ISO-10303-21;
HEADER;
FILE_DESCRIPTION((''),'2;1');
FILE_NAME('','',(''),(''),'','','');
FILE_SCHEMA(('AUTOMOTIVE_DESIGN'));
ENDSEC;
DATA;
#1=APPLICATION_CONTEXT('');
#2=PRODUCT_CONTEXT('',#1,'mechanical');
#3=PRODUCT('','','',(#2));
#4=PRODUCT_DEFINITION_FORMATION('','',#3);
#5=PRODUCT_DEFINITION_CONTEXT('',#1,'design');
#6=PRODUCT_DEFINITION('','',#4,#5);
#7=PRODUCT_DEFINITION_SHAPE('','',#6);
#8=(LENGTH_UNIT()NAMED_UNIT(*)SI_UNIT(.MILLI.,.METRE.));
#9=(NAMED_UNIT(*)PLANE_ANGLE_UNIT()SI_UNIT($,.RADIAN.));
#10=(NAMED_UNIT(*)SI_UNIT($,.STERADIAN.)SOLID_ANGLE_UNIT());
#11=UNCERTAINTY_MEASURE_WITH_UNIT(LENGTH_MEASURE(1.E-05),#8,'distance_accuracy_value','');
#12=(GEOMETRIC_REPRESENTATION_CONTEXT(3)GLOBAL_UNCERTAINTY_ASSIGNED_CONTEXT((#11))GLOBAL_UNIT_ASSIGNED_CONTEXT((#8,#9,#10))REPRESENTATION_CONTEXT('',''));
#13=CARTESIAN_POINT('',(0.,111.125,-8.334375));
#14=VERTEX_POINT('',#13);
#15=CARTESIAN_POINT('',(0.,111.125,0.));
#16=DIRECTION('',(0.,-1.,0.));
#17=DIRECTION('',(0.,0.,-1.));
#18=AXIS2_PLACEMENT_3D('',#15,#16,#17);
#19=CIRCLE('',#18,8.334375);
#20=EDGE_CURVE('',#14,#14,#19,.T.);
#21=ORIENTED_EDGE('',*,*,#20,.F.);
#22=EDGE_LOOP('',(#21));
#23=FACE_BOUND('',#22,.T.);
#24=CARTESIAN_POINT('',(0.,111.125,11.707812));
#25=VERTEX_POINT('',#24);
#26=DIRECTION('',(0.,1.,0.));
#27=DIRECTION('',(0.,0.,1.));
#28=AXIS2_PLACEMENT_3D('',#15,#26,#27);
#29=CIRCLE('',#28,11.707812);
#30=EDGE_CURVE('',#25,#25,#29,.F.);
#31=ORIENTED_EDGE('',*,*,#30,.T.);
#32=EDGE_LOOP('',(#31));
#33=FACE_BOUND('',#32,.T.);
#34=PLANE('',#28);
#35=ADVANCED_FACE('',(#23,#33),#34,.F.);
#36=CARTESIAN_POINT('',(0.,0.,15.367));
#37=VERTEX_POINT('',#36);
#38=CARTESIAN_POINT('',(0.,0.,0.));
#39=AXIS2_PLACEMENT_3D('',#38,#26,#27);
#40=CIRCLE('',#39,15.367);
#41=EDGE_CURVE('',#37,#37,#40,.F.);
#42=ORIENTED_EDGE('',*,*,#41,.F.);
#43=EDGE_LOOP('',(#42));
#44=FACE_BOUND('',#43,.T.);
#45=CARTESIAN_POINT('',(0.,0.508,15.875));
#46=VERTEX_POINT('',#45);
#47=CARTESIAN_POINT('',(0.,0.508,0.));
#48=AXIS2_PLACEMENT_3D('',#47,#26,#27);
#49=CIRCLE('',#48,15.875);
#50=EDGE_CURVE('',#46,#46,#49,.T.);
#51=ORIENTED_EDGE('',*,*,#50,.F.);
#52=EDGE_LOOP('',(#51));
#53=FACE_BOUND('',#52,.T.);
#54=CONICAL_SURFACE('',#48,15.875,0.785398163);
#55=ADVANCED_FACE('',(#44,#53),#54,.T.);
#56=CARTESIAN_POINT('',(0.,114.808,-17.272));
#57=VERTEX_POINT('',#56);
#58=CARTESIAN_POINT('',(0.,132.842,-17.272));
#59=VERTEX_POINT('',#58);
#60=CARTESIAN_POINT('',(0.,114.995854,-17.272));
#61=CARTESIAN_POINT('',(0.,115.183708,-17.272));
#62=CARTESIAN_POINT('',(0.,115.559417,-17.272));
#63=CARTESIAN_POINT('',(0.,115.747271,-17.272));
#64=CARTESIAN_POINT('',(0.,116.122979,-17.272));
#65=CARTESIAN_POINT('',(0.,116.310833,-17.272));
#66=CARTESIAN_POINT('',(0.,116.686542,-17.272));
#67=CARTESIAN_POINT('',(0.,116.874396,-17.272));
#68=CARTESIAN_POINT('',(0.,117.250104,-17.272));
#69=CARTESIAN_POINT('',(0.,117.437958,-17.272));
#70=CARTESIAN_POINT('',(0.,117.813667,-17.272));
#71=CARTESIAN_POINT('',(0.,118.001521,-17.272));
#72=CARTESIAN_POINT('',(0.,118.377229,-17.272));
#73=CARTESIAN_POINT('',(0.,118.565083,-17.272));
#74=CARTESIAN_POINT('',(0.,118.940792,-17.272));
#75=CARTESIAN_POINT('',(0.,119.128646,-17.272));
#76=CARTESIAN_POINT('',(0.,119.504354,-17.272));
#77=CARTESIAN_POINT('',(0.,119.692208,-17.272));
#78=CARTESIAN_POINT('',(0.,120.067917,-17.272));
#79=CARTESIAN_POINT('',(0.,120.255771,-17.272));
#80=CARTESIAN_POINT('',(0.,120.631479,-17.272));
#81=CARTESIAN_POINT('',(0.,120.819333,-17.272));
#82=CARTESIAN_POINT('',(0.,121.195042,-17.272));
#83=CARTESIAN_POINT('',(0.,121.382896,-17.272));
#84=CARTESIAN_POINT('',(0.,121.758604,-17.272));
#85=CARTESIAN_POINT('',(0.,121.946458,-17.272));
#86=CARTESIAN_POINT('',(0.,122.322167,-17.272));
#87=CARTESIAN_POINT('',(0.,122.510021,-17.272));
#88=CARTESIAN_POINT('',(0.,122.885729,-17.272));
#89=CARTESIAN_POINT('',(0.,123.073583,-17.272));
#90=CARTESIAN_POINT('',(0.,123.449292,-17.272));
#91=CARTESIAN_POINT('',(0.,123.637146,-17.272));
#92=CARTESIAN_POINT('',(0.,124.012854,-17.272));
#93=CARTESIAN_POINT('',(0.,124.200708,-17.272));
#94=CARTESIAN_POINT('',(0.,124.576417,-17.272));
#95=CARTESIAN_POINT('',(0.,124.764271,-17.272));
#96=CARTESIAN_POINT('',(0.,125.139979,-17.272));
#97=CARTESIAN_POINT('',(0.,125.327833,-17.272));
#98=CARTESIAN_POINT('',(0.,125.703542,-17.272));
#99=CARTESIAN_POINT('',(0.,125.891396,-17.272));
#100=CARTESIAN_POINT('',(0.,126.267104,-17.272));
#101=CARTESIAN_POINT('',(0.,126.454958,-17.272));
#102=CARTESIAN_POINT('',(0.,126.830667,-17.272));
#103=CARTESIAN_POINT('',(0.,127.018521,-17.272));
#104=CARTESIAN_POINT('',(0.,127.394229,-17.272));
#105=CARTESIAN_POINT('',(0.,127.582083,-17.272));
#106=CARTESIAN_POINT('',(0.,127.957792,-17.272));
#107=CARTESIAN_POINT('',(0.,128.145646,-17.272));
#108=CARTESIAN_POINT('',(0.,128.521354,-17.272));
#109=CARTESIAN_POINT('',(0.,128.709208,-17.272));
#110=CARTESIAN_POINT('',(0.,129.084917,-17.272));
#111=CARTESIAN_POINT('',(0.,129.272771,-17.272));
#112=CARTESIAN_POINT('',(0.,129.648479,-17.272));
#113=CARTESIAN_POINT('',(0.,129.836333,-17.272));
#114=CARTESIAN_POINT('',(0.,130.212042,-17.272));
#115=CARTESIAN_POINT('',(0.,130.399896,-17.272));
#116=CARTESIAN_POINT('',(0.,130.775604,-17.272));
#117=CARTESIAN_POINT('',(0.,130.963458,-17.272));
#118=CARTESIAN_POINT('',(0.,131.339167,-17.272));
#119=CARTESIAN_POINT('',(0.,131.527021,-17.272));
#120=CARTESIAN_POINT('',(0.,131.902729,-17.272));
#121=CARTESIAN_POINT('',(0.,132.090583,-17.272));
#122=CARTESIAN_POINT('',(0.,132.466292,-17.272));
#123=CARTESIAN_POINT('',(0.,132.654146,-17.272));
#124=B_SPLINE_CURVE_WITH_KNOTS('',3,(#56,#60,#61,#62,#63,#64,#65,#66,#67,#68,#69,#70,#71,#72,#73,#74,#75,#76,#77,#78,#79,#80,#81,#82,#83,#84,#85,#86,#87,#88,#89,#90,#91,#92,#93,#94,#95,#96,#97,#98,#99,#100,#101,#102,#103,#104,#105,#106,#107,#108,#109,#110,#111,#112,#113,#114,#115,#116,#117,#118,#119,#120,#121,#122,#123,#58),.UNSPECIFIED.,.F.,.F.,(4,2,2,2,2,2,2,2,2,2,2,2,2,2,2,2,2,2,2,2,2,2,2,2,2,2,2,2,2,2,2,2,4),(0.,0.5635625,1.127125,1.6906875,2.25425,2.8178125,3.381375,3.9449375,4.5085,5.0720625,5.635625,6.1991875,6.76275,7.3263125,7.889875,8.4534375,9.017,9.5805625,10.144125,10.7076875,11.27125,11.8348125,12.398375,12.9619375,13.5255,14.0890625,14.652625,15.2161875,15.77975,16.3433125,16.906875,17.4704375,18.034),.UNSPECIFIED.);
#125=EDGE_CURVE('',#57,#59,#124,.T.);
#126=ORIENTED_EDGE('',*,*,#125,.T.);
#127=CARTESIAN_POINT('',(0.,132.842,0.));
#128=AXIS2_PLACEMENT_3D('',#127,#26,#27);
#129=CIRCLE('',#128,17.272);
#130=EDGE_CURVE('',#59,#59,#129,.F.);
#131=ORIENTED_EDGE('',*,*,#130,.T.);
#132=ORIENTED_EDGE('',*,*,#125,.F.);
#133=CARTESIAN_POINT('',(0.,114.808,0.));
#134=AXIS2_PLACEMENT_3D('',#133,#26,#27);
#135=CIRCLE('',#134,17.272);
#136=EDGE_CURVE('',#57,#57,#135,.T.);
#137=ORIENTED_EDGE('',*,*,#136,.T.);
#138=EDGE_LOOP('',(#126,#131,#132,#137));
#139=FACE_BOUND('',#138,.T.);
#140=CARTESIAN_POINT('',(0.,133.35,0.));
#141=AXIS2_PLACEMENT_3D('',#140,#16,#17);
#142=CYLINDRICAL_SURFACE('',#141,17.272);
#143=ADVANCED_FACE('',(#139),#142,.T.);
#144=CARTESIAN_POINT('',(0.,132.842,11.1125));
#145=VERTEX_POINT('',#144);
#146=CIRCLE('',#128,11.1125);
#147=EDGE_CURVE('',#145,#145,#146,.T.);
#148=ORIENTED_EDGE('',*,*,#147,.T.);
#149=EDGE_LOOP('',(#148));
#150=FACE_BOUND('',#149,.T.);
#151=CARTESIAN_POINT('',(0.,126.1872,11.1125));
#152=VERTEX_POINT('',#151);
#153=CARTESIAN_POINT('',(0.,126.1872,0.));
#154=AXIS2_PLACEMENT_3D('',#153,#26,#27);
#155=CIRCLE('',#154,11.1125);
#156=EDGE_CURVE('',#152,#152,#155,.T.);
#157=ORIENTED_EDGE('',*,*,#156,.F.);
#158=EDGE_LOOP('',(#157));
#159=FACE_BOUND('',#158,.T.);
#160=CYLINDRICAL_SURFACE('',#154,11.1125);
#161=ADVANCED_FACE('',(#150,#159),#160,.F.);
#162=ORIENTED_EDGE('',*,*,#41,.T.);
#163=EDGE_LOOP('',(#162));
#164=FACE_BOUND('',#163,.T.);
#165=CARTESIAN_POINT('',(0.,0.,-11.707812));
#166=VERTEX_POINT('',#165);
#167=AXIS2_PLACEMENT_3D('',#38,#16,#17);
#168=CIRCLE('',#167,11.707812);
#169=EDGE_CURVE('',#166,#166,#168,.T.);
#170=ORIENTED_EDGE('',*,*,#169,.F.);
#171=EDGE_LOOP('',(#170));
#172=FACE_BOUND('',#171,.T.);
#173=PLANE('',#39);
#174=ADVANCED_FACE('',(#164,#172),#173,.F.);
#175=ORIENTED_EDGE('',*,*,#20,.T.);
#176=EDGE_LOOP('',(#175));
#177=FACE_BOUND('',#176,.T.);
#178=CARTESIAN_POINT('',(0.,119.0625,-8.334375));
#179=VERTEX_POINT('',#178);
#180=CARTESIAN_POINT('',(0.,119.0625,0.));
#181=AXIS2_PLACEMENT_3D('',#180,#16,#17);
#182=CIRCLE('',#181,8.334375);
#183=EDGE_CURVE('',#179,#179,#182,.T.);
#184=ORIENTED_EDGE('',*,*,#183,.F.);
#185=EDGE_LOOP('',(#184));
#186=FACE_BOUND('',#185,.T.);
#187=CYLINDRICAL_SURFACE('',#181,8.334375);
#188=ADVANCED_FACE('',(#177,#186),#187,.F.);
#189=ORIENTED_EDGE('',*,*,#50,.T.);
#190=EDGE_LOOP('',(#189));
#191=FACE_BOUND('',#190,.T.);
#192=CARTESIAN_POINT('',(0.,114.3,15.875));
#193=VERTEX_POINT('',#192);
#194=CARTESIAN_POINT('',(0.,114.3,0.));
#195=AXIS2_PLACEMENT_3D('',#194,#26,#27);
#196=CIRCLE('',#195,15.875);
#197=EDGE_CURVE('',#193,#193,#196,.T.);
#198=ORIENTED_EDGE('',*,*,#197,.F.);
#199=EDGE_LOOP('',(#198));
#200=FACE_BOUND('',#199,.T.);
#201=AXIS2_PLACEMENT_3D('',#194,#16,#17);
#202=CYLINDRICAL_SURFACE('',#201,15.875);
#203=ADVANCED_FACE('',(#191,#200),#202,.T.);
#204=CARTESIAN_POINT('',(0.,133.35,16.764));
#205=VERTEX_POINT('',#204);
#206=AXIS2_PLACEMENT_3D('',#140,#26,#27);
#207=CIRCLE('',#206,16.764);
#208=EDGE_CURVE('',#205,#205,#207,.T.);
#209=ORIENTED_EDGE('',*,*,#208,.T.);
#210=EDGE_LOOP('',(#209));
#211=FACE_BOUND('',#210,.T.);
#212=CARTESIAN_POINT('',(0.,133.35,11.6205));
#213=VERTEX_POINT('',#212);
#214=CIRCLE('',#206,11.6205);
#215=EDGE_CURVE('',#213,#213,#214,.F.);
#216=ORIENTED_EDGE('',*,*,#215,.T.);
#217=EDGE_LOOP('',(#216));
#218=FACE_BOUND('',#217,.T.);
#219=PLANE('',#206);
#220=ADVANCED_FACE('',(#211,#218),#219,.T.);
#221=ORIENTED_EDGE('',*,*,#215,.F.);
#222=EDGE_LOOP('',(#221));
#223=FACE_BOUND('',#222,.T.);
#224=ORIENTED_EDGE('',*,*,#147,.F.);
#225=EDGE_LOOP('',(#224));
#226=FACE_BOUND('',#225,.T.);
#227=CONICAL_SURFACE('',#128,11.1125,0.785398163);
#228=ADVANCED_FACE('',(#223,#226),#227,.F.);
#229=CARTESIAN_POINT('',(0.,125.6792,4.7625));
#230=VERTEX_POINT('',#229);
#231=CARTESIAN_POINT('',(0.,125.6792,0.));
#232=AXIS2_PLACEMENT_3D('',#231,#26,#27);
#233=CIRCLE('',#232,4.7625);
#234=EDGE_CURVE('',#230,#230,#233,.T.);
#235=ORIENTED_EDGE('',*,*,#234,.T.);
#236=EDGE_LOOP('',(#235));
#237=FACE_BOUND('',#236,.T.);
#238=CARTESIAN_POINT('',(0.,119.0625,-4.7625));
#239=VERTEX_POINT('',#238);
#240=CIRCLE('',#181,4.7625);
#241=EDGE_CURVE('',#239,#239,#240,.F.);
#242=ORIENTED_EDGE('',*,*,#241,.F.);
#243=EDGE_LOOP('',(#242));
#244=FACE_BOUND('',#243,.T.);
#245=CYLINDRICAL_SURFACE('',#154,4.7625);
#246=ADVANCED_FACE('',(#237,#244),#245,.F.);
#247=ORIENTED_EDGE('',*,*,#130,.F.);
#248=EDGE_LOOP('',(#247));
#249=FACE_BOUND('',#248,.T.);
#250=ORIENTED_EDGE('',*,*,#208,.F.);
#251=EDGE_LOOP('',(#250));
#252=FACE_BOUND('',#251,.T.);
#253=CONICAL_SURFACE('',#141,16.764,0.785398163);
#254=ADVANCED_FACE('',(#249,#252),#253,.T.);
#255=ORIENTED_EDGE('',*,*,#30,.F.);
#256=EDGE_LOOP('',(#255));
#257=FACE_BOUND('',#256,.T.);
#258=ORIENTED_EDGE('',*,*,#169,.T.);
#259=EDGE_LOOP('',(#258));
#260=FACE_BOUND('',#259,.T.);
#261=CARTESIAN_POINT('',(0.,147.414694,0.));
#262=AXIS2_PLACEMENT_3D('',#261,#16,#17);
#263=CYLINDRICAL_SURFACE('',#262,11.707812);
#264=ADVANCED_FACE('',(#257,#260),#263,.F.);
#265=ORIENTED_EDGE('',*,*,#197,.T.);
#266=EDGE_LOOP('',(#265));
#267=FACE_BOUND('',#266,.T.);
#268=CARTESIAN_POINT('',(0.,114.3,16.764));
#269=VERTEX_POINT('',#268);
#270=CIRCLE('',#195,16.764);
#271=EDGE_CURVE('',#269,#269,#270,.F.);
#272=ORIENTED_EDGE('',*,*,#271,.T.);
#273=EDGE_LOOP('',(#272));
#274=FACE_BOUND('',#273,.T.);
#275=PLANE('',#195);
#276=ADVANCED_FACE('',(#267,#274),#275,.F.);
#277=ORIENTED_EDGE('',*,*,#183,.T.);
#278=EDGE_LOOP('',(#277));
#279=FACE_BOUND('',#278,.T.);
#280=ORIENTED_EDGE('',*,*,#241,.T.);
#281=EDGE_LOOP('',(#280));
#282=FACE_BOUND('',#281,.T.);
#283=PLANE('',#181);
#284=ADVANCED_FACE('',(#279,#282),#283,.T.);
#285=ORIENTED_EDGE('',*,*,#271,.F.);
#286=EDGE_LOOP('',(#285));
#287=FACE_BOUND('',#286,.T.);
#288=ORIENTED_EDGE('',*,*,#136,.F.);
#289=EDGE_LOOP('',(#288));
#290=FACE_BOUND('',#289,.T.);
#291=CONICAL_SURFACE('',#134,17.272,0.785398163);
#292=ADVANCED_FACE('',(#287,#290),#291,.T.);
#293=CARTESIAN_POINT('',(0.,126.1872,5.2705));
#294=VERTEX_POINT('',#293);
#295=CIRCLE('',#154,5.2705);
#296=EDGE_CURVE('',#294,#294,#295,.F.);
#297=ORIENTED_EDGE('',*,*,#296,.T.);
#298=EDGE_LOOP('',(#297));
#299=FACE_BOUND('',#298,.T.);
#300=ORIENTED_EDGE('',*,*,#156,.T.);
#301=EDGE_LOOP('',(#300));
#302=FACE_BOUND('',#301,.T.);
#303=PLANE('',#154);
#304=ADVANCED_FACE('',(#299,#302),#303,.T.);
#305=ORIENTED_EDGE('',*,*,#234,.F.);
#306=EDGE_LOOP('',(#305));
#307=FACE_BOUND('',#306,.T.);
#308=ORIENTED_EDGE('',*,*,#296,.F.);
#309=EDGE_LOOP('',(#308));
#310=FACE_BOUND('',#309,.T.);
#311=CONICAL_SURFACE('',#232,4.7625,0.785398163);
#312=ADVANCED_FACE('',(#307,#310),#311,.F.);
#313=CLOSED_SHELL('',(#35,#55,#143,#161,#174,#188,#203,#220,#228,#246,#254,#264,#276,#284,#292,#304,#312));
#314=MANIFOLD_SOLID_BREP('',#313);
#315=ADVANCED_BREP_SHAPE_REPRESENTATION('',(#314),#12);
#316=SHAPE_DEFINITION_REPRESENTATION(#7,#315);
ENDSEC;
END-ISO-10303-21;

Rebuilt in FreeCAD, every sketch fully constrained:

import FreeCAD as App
import Part
import Sketcher

V = App.Vector
Q = App.Units.Quantity


def edges_at(feature, points):
    """Names of the edges that pass closest to the given points."""
    edges = feature.Shape.Edges
    near = lambda p: min(range(len(edges)), key=lambda i: edges[i].distToShape(Part.Vertex(*p))[0])
    return sorted({f"Edge{near(p) + 1}" for p in points})

doc = App.newDocument("Part")
params = doc.addObject("Spreadsheet::Sheet", "Params")
for row, (alias, value) in enumerate([
    ("sketch1_diameter", "1.25 in"),
    ("pad1_length", "4.5 in"),
    ("sketch2_diameter", "1.36 in"),
    ("pad2_length", "0.75 in"),
    ("sketch3_diameter", "0.875 in"),
    ("pocket1_length", "0.282 in"),
    ("sketch4_diameter", "0.375 in"),
    ("hole_diameter", "0.375 in"),
    ("sketch5_diameter", "0.921875 in"),
    ("pocket2_length", "4.375 in"),
    ("sketch6_diameter", "0.65625 in"),
    ("pocket3_length", "0.3125 in"),
    ("chamfer_size", "0.02 in"),
], start=1):
    params.set(f"A{row}", alias)
    params.set(f"B{row}", "=" + value)
    params.setAlias(f"B{row}", alias)

body = doc.addObject("PartDesign::Body", "Body")

sketch1 = doc.addObject("Sketcher::SketchObject", "Sketch")
body.addObject(sketch1)
sketch1.AttachmentSupport = (doc.XZ_Plane, [""])
sketch1.MapMode = "FlatFace"
sketch1.addGeometry(Part.Circle(V(0, 0, 0), V(0, 0, 1), 16), False)
sketch1.addConstraint(Sketcher.Constraint("Coincident", 0, 3, -1, 1))
sketch1.addConstraint(Sketcher.Constraint("Diameter", 0, Q("1.25 in")))
sketch1.setExpression("Constraints[1]", "Params.sketch1_diameter")
pad1 = doc.addObject("PartDesign::Pad", "Pad")
body.addObject(pad1)
pad1.Profile = sketch1
pad1.setExpression("Length", "Params.pad1_length")
pad1.Reversed = True

sketch2 = doc.addObject("Sketcher::SketchObject", "Sketch001")
body.addObject(sketch2)
sketch2.AttachmentSupport = (doc.XZ_Plane, [""])
sketch2.MapMode = "FlatFace"
sketch2.AttachmentOffset = App.Placement(V(0, 0, -4.5 * 25.4), App.Rotation())
sketch2.addGeometry(Part.Circle(V(0, 0, 0), V(0, 0, 1), 17), False)
sketch2.addConstraint(Sketcher.Constraint("Coincident", 0, 3, -1, 1))
sketch2.addConstraint(Sketcher.Constraint("Diameter", 0, Q("1.36 in")))
sketch2.setExpression("Constraints[1]", "Params.sketch2_diameter")
pad2 = doc.addObject("PartDesign::Pad", "Pad001")
body.addObject(pad2)
pad2.Profile = sketch2
pad2.setExpression("Length", "Params.pad2_length")
pad2.Reversed = True

sketch3 = doc.addObject("Sketcher::SketchObject", "Sketch002")
body.addObject(sketch3)
sketch3.AttachmentSupport = (doc.XZ_Plane, [""])
sketch3.MapMode = "FlatFace"
sketch3.AttachmentOffset = App.Placement(V(0, 0, -5.25 * 25.4), App.Rotation())
sketch3.addGeometry(Part.Circle(V(0, 0, 0), V(0, 0, 1), 11), False)
sketch3.addConstraint(Sketcher.Constraint("Coincident", 0, 3, -1, 1))
sketch3.addConstraint(Sketcher.Constraint("Diameter", 0, Q("0.875 in")))
sketch3.setExpression("Constraints[1]", "Params.sketch3_diameter")
pocket1 = doc.addObject("PartDesign::Pocket", "Pocket")
body.addObject(pocket1)
pocket1.Profile = sketch3
pocket1.setExpression("Length", "Params.pocket1_length")
pocket1.Reversed = True

sketch4 = doc.addObject("Sketcher::SketchObject", "Sketch003")
body.addObject(sketch4)
sketch4.AttachmentSupport = (doc.XZ_Plane, [""])
sketch4.MapMode = "FlatFace"
sketch4.AttachmentOffset = App.Placement(V(0, 0, -4.968 * 25.4), App.Rotation())
sketch4.addGeometry(Part.Circle(V(0, 0, 0), V(0, 0, 1), 4.8), False)
sketch4.addConstraint(Sketcher.Constraint("Coincident", 0, 3, -1, 1))
sketch4.addConstraint(Sketcher.Constraint("Diameter", 0, Q("0.375 in")))
sketch4.setExpression("Constraints[1]", "Params.sketch4_diameter")
doc.recompute()
hole = doc.addObject("PartDesign::Hole", "Hole")
body.addObject(hole)
hole.Profile = sketch4
hole.ThreadType = "None"
hole.setExpression("Diameter", "Params.hole_diameter")
hole.DepthType = "ThroughAll"
hole.Reversed = True

sketch5 = doc.addObject("Sketcher::SketchObject", "Sketch004")
body.addObject(sketch5)
sketch5.AttachmentSupport = (doc.XZ_Plane, [""])
sketch5.MapMode = "FlatFace"
sketch5.addGeometry(Part.Circle(V(0, 0, 0), V(0, 0, 1), 12), False)
sketch5.addConstraint(Sketcher.Constraint("Coincident", 0, 3, -1, 1))
sketch5.addConstraint(Sketcher.Constraint("Diameter", 0, Q("0.921875 in")))
sketch5.setExpression("Constraints[1]", "Params.sketch5_diameter")
pocket2 = doc.addObject("PartDesign::Pocket", "Pocket001")
body.addObject(pocket2)
pocket2.Profile = sketch5
pocket2.setExpression("Length", "Params.pocket2_length")

sketch6 = doc.addObject("Sketcher::SketchObject", "Sketch005")
body.addObject(sketch6)
sketch6.AttachmentSupport = (doc.XZ_Plane, [""])
sketch6.MapMode = "FlatFace"
sketch6.AttachmentOffset = App.Placement(V(0, 0, -4.375 * 25.4), App.Rotation())
sketch6.addGeometry(Part.Circle(V(0, 0, 0), V(0, 0, 1), 8), False)
sketch6.addConstraint(Sketcher.Constraint("Coincident", 0, 3, -1, 1))
sketch6.addConstraint(Sketcher.Constraint("Diameter", 0, Q("0.65625 in")))
sketch6.setExpression("Constraints[1]", "Params.sketch6_diameter")
pocket3 = doc.addObject("PartDesign::Pocket", "Pocket002")
body.addObject(pocket3)
pocket3.Profile = sketch6
pocket3.setExpression("Length", "Params.pocket3_length")
doc.recompute()

chamfer = doc.addObject("PartDesign::Chamfer", "Chamfer")
body.addObject(chamfer)
chamfer.Base = (pocket3, edges_at(pocket3, [
    (0, 133.35, -11.113),
    (4.763, 126.187, 0),
    (0, 0, -15.875),
    (0, 114.3, 17.272),
    (0, 133.35, 17.272),
]))
chamfer.setExpression("Size", "Params.chamfer_size")

doc.recompute()
